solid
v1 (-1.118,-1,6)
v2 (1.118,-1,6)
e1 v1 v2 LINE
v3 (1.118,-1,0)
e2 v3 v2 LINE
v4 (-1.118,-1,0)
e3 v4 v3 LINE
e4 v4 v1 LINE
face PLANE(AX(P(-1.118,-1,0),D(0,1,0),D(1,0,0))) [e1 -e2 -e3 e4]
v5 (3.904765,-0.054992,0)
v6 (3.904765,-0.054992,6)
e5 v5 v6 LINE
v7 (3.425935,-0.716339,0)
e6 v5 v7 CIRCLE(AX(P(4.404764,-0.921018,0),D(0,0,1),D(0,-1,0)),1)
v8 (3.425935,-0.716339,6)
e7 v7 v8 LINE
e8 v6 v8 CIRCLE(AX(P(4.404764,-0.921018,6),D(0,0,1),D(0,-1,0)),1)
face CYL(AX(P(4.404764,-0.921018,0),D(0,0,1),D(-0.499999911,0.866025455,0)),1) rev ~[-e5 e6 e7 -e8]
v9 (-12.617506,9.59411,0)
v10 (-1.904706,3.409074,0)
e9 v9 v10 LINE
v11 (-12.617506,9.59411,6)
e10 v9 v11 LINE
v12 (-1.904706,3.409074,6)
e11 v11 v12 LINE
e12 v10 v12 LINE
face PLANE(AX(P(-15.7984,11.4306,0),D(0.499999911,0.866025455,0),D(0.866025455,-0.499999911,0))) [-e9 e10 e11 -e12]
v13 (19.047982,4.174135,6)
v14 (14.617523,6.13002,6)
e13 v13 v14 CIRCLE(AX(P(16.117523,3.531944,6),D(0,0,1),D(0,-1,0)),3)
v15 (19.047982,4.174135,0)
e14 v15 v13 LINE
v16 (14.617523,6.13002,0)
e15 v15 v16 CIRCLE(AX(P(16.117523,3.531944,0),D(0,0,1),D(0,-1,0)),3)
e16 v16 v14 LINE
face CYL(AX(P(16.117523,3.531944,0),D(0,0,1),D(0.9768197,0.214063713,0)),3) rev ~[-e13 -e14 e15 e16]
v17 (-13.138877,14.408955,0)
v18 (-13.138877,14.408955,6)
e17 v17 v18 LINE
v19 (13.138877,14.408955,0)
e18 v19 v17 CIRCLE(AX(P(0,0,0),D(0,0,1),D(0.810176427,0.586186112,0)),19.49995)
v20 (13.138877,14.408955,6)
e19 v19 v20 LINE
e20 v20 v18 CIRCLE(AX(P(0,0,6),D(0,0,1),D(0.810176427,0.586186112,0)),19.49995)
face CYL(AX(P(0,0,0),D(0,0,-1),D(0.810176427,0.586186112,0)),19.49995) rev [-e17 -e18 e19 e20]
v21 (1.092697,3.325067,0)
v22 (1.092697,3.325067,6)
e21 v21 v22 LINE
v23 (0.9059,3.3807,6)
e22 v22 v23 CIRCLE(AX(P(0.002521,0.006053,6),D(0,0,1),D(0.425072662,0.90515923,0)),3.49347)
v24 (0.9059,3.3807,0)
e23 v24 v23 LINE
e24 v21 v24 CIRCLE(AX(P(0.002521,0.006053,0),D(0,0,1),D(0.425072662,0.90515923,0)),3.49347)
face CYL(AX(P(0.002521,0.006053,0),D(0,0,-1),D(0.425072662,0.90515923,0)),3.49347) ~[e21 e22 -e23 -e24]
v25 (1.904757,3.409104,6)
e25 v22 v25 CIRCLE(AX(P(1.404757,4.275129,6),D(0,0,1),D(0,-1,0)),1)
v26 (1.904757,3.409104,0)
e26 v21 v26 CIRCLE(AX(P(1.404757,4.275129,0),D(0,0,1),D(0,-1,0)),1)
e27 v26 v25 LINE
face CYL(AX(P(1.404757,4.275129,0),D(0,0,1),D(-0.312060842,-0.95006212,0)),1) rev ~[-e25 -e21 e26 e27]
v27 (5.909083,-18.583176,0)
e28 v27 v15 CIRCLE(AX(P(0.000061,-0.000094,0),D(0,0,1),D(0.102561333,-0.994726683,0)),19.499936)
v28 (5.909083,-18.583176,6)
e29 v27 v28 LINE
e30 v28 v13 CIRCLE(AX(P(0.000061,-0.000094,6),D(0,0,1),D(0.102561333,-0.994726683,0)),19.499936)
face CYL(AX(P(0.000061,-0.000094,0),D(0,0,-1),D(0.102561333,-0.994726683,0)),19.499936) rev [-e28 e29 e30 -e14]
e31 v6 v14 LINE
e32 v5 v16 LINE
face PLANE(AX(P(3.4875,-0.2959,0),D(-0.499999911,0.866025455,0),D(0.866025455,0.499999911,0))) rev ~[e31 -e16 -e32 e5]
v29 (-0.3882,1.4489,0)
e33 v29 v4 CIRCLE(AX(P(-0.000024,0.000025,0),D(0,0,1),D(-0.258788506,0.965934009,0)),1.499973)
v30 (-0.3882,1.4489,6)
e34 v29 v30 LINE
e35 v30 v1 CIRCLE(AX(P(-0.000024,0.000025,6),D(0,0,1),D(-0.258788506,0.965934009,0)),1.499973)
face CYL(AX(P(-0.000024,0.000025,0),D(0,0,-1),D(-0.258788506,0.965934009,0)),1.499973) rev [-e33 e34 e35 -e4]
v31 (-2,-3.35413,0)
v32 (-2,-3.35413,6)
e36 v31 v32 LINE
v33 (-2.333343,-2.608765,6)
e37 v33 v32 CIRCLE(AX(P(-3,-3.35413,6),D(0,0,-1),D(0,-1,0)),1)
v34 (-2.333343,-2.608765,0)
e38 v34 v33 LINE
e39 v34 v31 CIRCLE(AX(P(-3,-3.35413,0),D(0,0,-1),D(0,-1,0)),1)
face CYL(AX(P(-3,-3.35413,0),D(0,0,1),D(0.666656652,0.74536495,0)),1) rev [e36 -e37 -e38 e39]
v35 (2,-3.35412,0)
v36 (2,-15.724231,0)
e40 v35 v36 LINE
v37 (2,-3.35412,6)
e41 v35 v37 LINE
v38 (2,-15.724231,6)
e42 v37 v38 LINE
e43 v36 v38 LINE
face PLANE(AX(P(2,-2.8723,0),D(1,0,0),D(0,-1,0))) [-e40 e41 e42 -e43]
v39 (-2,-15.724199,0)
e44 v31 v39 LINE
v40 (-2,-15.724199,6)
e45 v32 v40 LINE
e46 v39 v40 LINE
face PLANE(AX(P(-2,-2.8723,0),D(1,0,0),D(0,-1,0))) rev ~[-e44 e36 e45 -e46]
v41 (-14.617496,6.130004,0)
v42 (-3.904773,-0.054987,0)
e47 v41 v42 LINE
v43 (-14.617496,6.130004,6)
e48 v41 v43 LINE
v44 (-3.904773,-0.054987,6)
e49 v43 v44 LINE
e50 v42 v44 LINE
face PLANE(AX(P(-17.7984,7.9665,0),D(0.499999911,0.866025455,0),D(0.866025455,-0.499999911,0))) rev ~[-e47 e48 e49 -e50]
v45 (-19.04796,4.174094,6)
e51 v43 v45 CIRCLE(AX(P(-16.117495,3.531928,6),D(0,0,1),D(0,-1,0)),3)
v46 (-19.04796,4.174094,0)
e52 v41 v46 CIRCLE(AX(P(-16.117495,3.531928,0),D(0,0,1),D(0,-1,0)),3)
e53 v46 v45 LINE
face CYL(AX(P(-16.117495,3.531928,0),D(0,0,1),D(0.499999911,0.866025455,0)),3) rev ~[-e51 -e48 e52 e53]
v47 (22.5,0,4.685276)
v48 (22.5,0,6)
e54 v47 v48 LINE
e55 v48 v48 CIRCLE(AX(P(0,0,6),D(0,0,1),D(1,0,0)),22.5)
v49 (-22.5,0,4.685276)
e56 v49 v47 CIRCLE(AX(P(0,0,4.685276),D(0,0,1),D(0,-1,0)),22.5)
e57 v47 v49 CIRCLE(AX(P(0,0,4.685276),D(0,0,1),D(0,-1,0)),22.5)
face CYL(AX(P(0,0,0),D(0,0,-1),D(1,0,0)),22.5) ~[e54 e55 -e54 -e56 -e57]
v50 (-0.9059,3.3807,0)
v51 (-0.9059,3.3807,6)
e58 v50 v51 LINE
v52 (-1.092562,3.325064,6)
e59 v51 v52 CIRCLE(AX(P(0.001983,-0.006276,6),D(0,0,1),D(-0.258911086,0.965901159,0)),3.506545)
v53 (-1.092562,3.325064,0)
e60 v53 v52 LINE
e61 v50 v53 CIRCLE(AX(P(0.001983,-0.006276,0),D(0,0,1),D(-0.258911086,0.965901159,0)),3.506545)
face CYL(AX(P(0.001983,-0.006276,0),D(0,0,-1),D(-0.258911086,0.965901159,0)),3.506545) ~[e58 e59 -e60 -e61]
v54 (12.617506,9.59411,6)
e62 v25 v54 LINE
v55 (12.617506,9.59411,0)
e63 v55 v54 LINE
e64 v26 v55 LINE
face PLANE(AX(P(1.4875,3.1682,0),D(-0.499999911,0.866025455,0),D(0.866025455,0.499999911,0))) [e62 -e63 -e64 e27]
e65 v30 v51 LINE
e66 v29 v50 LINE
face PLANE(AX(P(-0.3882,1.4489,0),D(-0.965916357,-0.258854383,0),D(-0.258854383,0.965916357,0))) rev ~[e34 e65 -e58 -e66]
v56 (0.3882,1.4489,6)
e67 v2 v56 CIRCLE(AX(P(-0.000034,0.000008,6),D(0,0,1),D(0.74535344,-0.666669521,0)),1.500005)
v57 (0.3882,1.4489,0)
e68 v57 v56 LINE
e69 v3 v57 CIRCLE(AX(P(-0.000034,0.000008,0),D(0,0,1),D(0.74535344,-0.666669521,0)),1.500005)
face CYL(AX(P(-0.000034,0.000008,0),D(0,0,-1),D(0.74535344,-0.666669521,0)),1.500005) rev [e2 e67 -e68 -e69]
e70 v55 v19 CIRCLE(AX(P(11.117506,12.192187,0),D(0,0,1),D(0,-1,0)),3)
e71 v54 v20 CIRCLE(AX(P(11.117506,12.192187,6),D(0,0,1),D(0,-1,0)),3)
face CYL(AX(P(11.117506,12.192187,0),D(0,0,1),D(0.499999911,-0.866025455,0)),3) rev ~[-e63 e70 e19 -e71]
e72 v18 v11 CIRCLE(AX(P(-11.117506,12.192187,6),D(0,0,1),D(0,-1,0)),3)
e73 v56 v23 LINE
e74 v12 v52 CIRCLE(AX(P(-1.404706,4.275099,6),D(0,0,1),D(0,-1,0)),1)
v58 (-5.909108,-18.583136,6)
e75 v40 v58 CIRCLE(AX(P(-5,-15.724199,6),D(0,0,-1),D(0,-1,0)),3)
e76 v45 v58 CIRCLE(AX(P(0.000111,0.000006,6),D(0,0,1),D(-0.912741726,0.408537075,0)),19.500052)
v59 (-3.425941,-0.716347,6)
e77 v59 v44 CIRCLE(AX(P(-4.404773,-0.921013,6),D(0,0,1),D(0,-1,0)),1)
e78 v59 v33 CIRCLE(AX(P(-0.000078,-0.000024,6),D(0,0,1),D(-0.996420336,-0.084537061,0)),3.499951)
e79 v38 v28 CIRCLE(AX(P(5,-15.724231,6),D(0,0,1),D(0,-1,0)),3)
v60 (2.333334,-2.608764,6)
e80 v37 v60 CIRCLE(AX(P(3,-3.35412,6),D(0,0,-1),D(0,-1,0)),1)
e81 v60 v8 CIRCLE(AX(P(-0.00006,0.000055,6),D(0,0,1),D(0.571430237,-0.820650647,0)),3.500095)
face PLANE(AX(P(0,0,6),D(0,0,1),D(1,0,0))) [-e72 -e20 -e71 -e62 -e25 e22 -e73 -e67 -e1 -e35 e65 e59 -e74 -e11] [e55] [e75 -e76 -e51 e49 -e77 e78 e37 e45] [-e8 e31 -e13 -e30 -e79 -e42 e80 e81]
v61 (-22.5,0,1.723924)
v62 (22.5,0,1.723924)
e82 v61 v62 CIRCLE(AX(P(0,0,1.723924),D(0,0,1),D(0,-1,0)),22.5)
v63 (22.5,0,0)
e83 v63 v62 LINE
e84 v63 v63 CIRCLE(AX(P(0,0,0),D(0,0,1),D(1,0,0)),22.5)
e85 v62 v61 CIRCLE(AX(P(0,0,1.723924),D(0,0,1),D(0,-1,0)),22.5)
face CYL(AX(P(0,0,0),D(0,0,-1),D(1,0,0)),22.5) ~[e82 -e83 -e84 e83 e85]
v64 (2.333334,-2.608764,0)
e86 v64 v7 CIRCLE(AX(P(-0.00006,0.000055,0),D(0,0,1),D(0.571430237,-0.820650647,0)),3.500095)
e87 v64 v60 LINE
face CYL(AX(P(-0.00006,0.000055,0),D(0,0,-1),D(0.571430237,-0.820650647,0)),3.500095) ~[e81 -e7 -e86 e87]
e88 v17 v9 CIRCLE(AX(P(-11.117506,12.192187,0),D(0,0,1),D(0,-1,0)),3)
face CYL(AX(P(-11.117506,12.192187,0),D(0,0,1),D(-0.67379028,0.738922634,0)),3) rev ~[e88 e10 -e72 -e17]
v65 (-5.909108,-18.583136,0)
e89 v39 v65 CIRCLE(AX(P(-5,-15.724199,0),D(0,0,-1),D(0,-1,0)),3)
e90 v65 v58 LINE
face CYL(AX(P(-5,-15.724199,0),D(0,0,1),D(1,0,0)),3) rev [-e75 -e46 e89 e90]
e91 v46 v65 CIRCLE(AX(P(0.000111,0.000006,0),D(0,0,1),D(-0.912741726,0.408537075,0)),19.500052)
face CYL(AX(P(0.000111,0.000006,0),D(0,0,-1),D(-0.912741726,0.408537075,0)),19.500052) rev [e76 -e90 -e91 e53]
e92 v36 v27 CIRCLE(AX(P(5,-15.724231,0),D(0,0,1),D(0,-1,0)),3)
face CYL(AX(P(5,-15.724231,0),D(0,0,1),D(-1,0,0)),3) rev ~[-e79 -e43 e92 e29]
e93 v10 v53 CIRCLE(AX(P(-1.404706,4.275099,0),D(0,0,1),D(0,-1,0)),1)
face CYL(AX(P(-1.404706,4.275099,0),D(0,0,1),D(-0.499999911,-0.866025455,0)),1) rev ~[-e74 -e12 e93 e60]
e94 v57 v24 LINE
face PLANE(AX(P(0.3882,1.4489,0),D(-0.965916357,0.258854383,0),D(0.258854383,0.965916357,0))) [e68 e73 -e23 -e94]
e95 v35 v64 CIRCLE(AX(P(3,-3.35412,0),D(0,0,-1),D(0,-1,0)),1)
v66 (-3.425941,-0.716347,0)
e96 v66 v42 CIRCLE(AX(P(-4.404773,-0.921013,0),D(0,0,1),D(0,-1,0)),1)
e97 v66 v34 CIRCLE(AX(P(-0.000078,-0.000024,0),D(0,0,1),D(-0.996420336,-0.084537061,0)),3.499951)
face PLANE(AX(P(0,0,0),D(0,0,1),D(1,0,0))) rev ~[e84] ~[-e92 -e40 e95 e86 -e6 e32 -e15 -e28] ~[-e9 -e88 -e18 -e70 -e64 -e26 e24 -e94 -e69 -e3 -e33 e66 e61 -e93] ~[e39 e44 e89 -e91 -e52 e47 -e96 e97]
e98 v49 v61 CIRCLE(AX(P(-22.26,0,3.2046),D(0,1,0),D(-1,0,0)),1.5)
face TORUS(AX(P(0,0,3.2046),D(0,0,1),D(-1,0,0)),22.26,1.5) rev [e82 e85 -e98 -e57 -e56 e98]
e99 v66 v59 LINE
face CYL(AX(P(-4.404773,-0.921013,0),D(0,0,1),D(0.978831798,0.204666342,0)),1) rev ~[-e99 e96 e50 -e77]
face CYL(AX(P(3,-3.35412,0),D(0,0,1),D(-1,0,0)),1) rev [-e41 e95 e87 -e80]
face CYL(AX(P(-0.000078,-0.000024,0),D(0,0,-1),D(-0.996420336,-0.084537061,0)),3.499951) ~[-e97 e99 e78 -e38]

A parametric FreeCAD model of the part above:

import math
import FreeCAD as App
import Part
import Sketcher

V = App.Vector
Q = App.Units.Quantity


def edges_at(feature, points):
    """Names of the edges that pass closest to the given points."""
    edges = feature.Shape.Edges
    near = lambda p: min(range(len(edges)), key=lambda i: edges[i].distToShape(Part.Vertex(*p))[0])
    return sorted({f"Edge{near(p) + 1}" for p in points})

doc = App.newDocument("Part")
body = doc.addObject("PartDesign::Body", "Body")

sketch1 = doc.addObject("Sketcher::SketchObject", "Sketch")
body.addObject(sketch1)
sketch1.AttachmentSupport = (doc.XY_Plane, [""])
sketch1.MapMode = "FlatFace"
sketch1.addGeometry([
    Part.Circle(V(0, 0, 0), V(0, 0, 1), 22.5),
    Part.ArcOfCircle(Part.Circle(V(0, 0, 0), V(0, 0, 1), 3.5), math.radians(-175), math.radians(-125)),
    Part.LineSegment(V(-2, -2.9, 0), V(-2, -19.4, 0)),
    Part.ArcOfCircle(Part.Circle(V(0, 0, 0), V(0, 0, 1), 19.5), math.radians(156), math.radians(264)),
    Part.LineSegment(V(-17.8, 8, 0), V(-3.5, -0.3, 0)),
    Part.LineSegment(V(2, -19.4, 0), V(2, -2.9, 0)),
    Part.ArcOfCircle(Part.Circle(V(0, 0, 0), V(0, 0, 1), 3.5), math.radians(-55), math.radians(-5)),
    Part.LineSegment(V(3.5, -0.3, 0), V(17.8, 8, 0)),
    Part.ArcOfCircle(Part.Circle(V(0, 0, 0), V(0, 0, 1), 19.5), math.radians(-84), math.radians(24)),
    Part.LineSegment(V(1.1, -1, 0), V(-1.1, -1, 0)),
    Part.ArcOfCircle(Part.Circle(V(0, 0, 0), V(0, 0, 1), 1.5), math.radians(105), math.radians(222)),
    Part.LineSegment(V(-0.4, 1.4, 0), V(-0.9, 3.4, 0)),
    Part.ArcOfCircle(Part.Circle(V(0, 0, 0), V(0, 0, 1), 3.5), math.radians(105.01), math.radians(115.14)),
    Part.LineSegment(V(-1.5, 3.2, 0), V(-15.8, 11.4, 0)),
    Part.ArcOfCircle(Part.Circle(V(0, 0, 0), V(0, 0, 1), 19.5), math.radians(36), math.radians(144)),
    Part.LineSegment(V(15.8, 11.4, 0), V(1.5, 3.2, 0)),
    Part.ArcOfCircle(Part.Circle(V(0, 0, 0), V(0, 0, 1), 3.5), math.radians(64.84), math.radians(75.01)),
    Part.LineSegment(V(0.9, 3.4, 0), V(0.4, 1.4, 0)),
    Part.ArcOfCircle(Part.Circle(V(0, 0, 0), V(0, 0, 1), 1.5), math.radians(-42), math.radians(75)),
], False)
sketch1.addConstraint([
    Sketcher.Constraint("Coincident", 1, 2, 2, 1),
    Sketcher.Constraint("Coincident", 2, 2, 3, 2),
    Sketcher.Constraint("Coincident", 3, 1, 4, 1),
    Sketcher.Constraint("Coincident", 4, 2, 1, 1),
    Sketcher.Constraint("Coincident", 5, 2, 6, 1),
    Sketcher.Constraint("Coincident", 6, 2, 7, 1),
    Sketcher.Constraint("Coincident", 7, 2, 8, 2),
    Sketcher.Constraint("Coincident", 8, 1, 5, 1),
    Sketcher.Constraint("Coincident", 9, 2, 10, 2),
    Sketcher.Constraint("Coincident", 10, 1, 11, 1),
    Sketcher.Constraint("Coincident", 11, 2, 12, 1),
    Sketcher.Constraint("Coincident", 12, 2, 13, 1),
    Sketcher.Constraint("Coincident", 13, 2, 14, 2),
    Sketcher.Constraint("Coincident", 14, 1, 15, 1),
    Sketcher.Constraint("Coincident", 15, 2, 16, 1),
    Sketcher.Constraint("Coincident", 16, 2, 17, 1),
    Sketcher.Constraint("Coincident", 17, 2, 18, 2),
    Sketcher.Constraint("Coincident", 18, 1, 9, 1),
    Sketcher.Constraint("Vertical", 2),
    Sketcher.Constraint("Vertical", 5),
    Sketcher.Constraint("Horizontal", 9),
    Sketcher.Constraint("Coincident", 0, 3, -1, 1),
    Sketcher.Constraint("Coincident", 1, 3, -1, 1),
    Sketcher.Constraint("Coincident", 3, 3, -1, 1),
    Sketcher.Constraint("Coincident", 6, 3, -1, 1),
    Sketcher.Constraint("Coincident", 8, 3, -1, 1),
    Sketcher.Constraint("Coincident", 10, 3, -1, 1),
    Sketcher.Constraint("Coincident", 14, 3, -1, 1),
    Sketcher.Constraint("Coincident", 18, 3, -1, 1),
    Sketcher.Constraint("Equal", 1, 6),
    Sketcher.Constraint("Equal", 3, 8),
    Sketcher.Constraint("Equal", 8, 14),
    Sketcher.Constraint("Equal", 10, 18),
    Sketcher.Constraint("Symmetric", 12, 2, 15, 2, -2),
    Sketcher.Constraint("Symmetric", 11, 2, 16, 2, -2),
    Sketcher.Constraint("Parallel", 4, 13),
    Sketcher.Constraint("Parallel", 7, 15),
    Sketcher.Constraint("Horizontal", 1, 2, 5, 2),
    Sketcher.Constraint("Horizontal", 4, 2, 6, 2),
    Sketcher.Constraint("Horizontal", 3, 1, 7, 2),
    Sketcher.Constraint("Horizontal", 10, 1, 17, 2),
    Sketcher.Constraint("Equal", 7, 13),
    Sketcher.Constraint("Diameter", 0, 45.0),
    Sketcher.Constraint("Radius", 1, 3.5),
    Sketcher.Constraint("Radius", 10, 1.5),
    Sketcher.Constraint("Distance", 11, 2.0),
    Sketcher.Constraint("DistanceX", 1, 2, -1, 1, 2.0),
    Sketcher.Constraint("DistanceY", 9, 2, -1, 1, 1.0),
    Sketcher.Constraint("DistanceX", 3, 1, 13, 2, 2.0),
    Sketcher.Constraint("Radius", 3, 19.5),
    Sketcher.Constraint("Angle", 4, Q("-30 deg")),
    Sketcher.Constraint("Radius", 12, 3.5065),
    Sketcher.Constraint("Radius", 16, 3.4935),
    Sketcher.Constraint("DistanceX", 9, 2, 12, 3, 1.12),
    Sketcher.Constraint("DistanceY", 11, 2, 13, 2, 8.05),
    Sketcher.Constraint("DistanceY", -1, 1, 17, 2, 1.449),
])
pad1 = doc.addObject("PartDesign::Pad", "Pad")
body.addObject(pad1)
pad1.Profile = sketch1
pad1.Length = 6
doc.recompute()

fillet = doc.addObject("PartDesign::Fillet", "Fillet")
body.addObject(fillet)
fillet.Base = (pad1, edges_at(pad1, [
    (3.487, -0.296, 3),
    (2, -2.872, 3),
    (-3.487, -0.296, 3),
    (-2, -2.872, 3),
    (-1.488, 3.168, 3),
    (1.488, 3.168, 3),
]))
fillet.Radius = 1
doc.recompute()

fillet2 = doc.addObject("PartDesign::Fillet", "Fillet001")
body.addObject(fillet2)
fillet2.Base = (fillet, edges_at(fillet, [
    (-17.798, 7.966, 3),
    (-15.798, 11.431, 3),
    (15.798, 11.431, 3),
    (17.798, 7.966, 3),
    (2, -19.397, 3),
    (-2, -19.397, 3),
]))
fillet2.Radius = 3

sketch2 = doc.addObject("Sketcher::SketchObject", "Sketch001")
body.addObject(sketch2)
sketch2.AttachmentSupport = (doc.XZ_Plane, [""])
sketch2.MapMode = "FlatFace"
sketch2.addGeometry(Part.Circle(V(-22.3, 3.2, 0), V(0, 0, 1), 1.5), False)
sketch2.addConstraint([
    Sketcher.Constraint("Diameter", 0, 3.0),
    Sketcher.Constraint("DistanceX", 0, 3, -1, 1, 22.26),
    Sketcher.Constraint("DistanceY", -1, 1, 0, 3, 3.2046),
])
groove = doc.addObject("PartDesign::Groove", "Groove")
body.addObject(groove)
groove.Profile = sketch2
groove.ReferenceAxis = (sketch2, ["V_Axis"])
groove.Angle = 360

doc.recompute()
